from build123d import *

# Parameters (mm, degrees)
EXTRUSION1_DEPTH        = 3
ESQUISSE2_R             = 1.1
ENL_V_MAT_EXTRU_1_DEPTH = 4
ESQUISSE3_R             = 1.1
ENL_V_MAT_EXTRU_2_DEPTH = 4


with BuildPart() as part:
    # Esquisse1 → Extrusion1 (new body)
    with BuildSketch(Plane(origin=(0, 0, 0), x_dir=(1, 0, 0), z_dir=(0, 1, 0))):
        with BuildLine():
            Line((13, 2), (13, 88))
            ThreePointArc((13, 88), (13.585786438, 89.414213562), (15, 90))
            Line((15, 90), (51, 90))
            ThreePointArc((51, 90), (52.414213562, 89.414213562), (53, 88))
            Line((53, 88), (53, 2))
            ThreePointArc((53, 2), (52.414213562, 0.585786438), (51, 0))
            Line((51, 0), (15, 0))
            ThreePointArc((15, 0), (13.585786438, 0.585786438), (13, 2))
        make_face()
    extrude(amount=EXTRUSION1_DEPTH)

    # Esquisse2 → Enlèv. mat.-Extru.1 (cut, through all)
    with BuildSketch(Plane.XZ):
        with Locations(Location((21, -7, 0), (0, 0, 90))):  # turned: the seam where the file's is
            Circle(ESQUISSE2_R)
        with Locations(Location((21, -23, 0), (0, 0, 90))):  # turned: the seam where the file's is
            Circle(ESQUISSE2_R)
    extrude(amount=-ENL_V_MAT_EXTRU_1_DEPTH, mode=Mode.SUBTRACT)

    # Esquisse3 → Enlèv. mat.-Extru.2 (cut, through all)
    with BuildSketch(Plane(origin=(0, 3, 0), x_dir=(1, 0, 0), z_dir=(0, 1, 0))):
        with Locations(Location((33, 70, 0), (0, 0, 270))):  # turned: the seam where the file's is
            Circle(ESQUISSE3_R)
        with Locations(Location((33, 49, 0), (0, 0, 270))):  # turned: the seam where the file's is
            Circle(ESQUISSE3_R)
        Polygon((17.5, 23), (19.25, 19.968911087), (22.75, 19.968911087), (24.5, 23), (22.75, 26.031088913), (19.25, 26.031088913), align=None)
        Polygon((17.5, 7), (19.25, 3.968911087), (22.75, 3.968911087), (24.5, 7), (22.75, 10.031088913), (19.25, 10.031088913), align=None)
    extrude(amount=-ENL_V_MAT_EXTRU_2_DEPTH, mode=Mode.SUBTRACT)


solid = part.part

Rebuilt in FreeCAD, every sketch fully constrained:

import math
import FreeCAD as App
import Part
import Sketcher
from FreeCAD import Vector
Q = App.Units.Quantity


def add_polygon(sketch, points):
    """Adds a closed chain of lines whose ends are joined by coincident constraints."""
    first, n = sketch.GeometryCount, len(points)
    for a, b in zip(points, points[1:] + points[:1]):
        sketch.addGeometry(Part.LineSegment(App.Vector(*a, 0), App.Vector(*b, 0)), False)
    for i in range(n):
        sketch.addConstraint(Sketcher.Constraint("Coincident", first + i, 2, first + (i + 1) % n, 1))

doc = App.newDocument("Part")
params = doc.addObject("Spreadsheet::Sheet", "Params")
for row, (alias, value) in enumerate([
    ("sketch1_radius", "2 mm"),
    ("sketch1_width", "36 mm"),
    ("sketch1_height", "86 mm"),
    ("pad1_length", "3 mm"),
    ("sketch2_diameter", "2.2 mm"),
    ("sketch3_diameter", "2.2 mm"),
    ("sketch3_width", "3.5 mm"),
], start=1):
    params.set(f"A{row}", alias)
    params.set(f"B{row}", "=" + value)
    params.setAlias(f"B{row}", alias)

body = doc.addObject("PartDesign::Body", "Body")

# Sketch on XZ plane
sketch1 = doc.addObject("Sketcher::SketchObject", "Sketch")
body.addObject(sketch1)
sketch1.AttachmentSupport = (doc.XZ_Plane, [""])
sketch1.MapMode = "FlatFace"
sketch1.addGeometry([
    Part.LineSegment(Vector(13, -88, 0), Vector(13, -2, 0)),  # 0
    Part.ArcOfCircle(Part.Circle(Vector(15, -2, 0), Vector(0, 0, 1), 2), math.radians(90), math.radians(180)),  # 1
    Part.LineSegment(Vector(15, 0, 0), Vector(51, 0, 0)),  # 2
    Part.ArcOfCircle(Part.Circle(Vector(51, -2, 0), Vector(0, 0, 1), 2), math.radians(0), math.radians(90)),  # 3
    Part.LineSegment(Vector(53, -2, 0), Vector(53, -88, 0)),  # 4
    Part.ArcOfCircle(Part.Circle(Vector(51, -88, 0), Vector(0, 0, 1), 2), math.radians(-90), math.radians(0)),  # 5
    Part.LineSegment(Vector(51, -90, 0), Vector(15, -90, 0)),  # 6
    Part.ArcOfCircle(Part.Circle(Vector(15, -88, 0), Vector(0, 0, 1), 2), math.radians(-180), math.radians(-90)),  # 7
], False)
sketch1.addConstraint([
    Sketcher.Constraint("Tangent", 0, 2, 1, 2),
    Sketcher.Constraint("Tangent", 1, 1, 2, 1),
    Sketcher.Constraint("Tangent", 2, 2, 3, 2),
    Sketcher.Constraint("Tangent", 3, 1, 4, 1),
    Sketcher.Constraint("Tangent", 4, 2, 5, 2),
    Sketcher.Constraint("Tangent", 5, 1, 6, 1),
    Sketcher.Constraint("Tangent", 6, 2, 7, 2),
    Sketcher.Constraint("Tangent", 7, 1, 0, 1),
    Sketcher.Constraint("Vertical", 0),
    Sketcher.Constraint("Horizontal", 2),
    Sketcher.Constraint("Vertical", 4),
    Sketcher.Constraint("Horizontal", 6),
    Sketcher.Constraint("Equal", 1, 3),
    Sketcher.Constraint("Equal", 3, 5),
    Sketcher.Constraint("Equal", 5, 7),
    Sketcher.Constraint("PointOnObject", 1, 1, -1),
    Sketcher.Constraint("Radius", 1, Q("2 mm")),
    Sketcher.Constraint("DistanceX", 2, 1, 2, 2, Q("36 mm")),
    Sketcher.Constraint("DistanceY", 0, 1, 0, 2, Q("86 mm")),
    Sketcher.Constraint("DistanceX", -1, 1, 1, 3, Q("15 mm")),
])
sketch1.setExpression("Constraints[16]", "Params.sketch1_radius")
sketch1.setExpression("Constraints[17]", "Params.sketch1_width")
sketch1.setExpression("Constraints[18]", "Params.sketch1_height")
pad1 = doc.addObject("PartDesign::Pad", "Pad")
body.addObject(pad1)
pad1.Profile = sketch1
pad1.setExpression("Length", "Params.pad1_length")
pad1.Reversed = True

# Sketch on XZ plane
sketch2 = doc.addObject("Sketcher::SketchObject", "Sketch001")
body.addObject(sketch2)
sketch2.AttachmentSupport = (doc.XZ_Plane, [""])
sketch2.MapMode = "FlatFace"
sketch2.addGeometry([
    Part.Circle(Vector(21, -7, 0), Vector(0, 0, 1), 1.1),
    Part.Circle(Vector(21, -23, 0), Vector(0, 0, 1), 1.1),
], False)
sketch2.addConstraint([
    Sketcher.Constraint("Equal", 0, 1),
    Sketcher.Constraint("Vertical", 0, 3, 1, 3),
    Sketcher.Constraint("Diameter", 0, Q("2.2 mm")),
    Sketcher.Constraint("DistanceX", -1, 1, 0, 3, Q("21 mm")),
    Sketcher.Constraint("DistanceY", 0, 3, -1, 1, Q("7 mm")),
    Sketcher.Constraint("DistanceY", 1, 3, -1, 1, Q("23 mm")),
])
sketch2.setExpression("Constraints[2]", "Params.sketch2_diameter")
pocket1 = doc.addObject("PartDesign::Pocket", "Pocket")
body.addObject(pocket1)
pocket1.Profile = sketch2
pocket1.Type = "ThroughAll"

# Sketch on XZ plane
sketch3 = doc.addObject("Sketcher::SketchObject", "Sketch002")
body.addObject(sketch3)
sketch3.AttachmentSupport = (doc.XZ_Plane, [""])
sketch3.MapMode = "FlatFace"
sketch3.AttachmentOffset = App.Placement(Vector(0, 0, -3), App.Rotation())
sketch3.addGeometry(Part.Circle(Vector(33, -70, 0), Vector(0, 0, 1), 1.1), False)  # 0
sketch3.addGeometry(Part.Circle(Vector(33, -49, 0), Vector(0, 0, 1), 1.1), False)  # 1
add_polygon(sketch3, [(17.5, -23), (19.25, -19.968911), (22.75, -19.968911), (24.5, -23), (22.75, -26.031089), (19.25, -26.031089)])  # lines 2-7
add_polygon(sketch3, [(17.5, -7), (19.25, -3.968911), (22.75, -3.968911), (24.5, -7), (22.75, -10.031089), (19.25, -10.031089)])  # lines 8-13
sketch3.addConstraint([
    Sketcher.Constraint("Horizontal", 3),
    Sketcher.Constraint("Horizontal", 6),
    Sketcher.Constraint("Horizontal", 9),
    Sketcher.Constraint("Horizontal", 12),
    Sketcher.Constraint("Equal", 0, 1),
    Sketcher.Constraint("Parallel", 2, 5),
    Sketcher.Constraint("Parallel", 4, 7),
    Sketcher.Constraint("Parallel", 5, 8),
    Sketcher.Constraint("Parallel", 7, 10),
    Sketcher.Constraint("Parallel", 8, 11),
    Sketcher.Constraint("Parallel", 10, 13),
    Sketcher.Constraint("Horizontal", 4, 2, 7, 2),
    Sketcher.Constraint("Horizontal", 10, 2, 13, 2),
    Sketcher.Constraint("Vertical", 0, 3, 1, 3),
    Sketcher.Constraint("Vertical", 3, 2, 5, 2),
    Sketcher.Constraint("Vertical", 2, 2, 6, 2),
    Sketcher.Constraint("Vertical", 6, 2, 8, 2),
    Sketcher.Constraint("Vertical", 5, 2, 9, 2),
    Sketcher.Constraint("Vertical", 4, 2, 10, 2),
    Sketcher.Constraint("Vertical", 9, 2, 11, 2),
    Sketcher.Constraint("Diameter", 0, Q("2.2 mm")),
    Sketcher.Constraint("Angle", 2, Q("60 deg")),
    Sketcher.Constraint("DistanceX", 3, 1, 3, 2, Q("3.5 mm")),
    Sketcher.Constraint("DistanceX", -1, 1, 0, 3, Q("33 mm")),
    Sketcher.Constraint("DistanceY", 0, 3, -1, 1, Q("70 mm")),
    Sketcher.Constraint("DistanceY", 1, 3, -1, 1, Q("49 mm")),
    Sketcher.Constraint("DistanceY", 4, 2, -1, 1, Q("23 mm")),
    Sketcher.Constraint("DistanceY", 10, 2, -1, 1, Q("7 mm")),
    Sketcher.Constraint("DistanceX", 7, 2, 4, 2, Q("7 mm")),
    Sketcher.Constraint("DistanceX", -1, 1, 4, 2, Q("24.5 mm")),
])
sketch3.setExpression("Constraints[32]", "Params.sketch3_diameter")
sketch3.setExpression("Constraints[34]", "Params.sketch3_width")
pocket2 = doc.addObject("PartDesign::Pocket", "Pocket001")
body.addObject(pocket2)
pocket2.Profile = sketch3
pocket2.Type = "ThroughAll"
pocket2.Reversed = True

doc.recompute()
